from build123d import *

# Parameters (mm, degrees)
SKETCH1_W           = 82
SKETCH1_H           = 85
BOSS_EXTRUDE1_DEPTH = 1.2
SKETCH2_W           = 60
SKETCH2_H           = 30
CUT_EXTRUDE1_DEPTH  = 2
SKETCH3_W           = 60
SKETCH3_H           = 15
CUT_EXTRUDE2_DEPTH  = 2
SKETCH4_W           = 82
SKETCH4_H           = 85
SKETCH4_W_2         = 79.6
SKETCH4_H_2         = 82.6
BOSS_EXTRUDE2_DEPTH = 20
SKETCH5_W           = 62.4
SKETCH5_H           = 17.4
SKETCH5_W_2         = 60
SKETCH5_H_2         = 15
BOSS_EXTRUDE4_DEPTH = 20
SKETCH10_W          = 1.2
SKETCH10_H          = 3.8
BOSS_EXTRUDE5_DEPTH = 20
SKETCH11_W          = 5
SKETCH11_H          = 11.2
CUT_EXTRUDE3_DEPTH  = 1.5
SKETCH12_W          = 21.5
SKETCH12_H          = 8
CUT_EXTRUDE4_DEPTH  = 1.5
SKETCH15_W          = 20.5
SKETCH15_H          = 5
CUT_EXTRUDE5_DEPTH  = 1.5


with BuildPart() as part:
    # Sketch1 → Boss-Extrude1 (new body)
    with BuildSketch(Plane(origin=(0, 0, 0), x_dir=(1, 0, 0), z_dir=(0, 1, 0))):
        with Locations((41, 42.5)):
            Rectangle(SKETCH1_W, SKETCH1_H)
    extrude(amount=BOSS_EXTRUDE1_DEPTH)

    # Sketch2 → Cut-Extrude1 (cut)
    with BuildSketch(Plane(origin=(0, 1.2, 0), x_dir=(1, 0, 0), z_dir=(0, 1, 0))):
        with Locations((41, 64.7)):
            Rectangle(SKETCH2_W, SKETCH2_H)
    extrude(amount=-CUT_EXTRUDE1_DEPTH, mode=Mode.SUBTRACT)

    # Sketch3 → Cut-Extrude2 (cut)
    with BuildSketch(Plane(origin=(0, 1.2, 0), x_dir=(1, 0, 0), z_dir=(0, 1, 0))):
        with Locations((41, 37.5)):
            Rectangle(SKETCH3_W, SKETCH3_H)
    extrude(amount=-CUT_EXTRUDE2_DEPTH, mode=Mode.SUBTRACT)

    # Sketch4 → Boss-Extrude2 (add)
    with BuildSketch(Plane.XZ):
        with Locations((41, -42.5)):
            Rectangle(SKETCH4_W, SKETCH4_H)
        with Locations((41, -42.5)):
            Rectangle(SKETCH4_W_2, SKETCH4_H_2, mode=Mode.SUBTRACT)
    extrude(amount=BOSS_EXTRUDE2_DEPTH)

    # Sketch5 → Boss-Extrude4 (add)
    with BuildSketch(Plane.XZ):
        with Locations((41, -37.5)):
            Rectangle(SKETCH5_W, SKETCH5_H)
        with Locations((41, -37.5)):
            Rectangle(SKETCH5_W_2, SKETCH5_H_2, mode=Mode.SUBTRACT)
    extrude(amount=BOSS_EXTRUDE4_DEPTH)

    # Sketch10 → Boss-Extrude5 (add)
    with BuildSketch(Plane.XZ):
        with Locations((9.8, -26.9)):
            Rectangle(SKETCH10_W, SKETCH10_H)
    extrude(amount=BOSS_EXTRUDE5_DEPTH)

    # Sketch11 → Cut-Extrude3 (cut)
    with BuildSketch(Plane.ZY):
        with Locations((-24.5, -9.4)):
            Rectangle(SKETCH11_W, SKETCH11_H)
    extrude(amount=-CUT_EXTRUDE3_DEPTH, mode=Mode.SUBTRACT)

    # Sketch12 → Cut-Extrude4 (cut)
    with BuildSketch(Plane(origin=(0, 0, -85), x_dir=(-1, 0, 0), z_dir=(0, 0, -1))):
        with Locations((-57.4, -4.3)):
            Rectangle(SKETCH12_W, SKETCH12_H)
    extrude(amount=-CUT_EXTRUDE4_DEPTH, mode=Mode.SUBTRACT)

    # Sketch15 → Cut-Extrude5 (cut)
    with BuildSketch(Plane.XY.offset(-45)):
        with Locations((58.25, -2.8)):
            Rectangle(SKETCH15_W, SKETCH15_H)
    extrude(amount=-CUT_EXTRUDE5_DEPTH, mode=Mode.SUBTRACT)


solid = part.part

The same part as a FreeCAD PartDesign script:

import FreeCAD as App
import Part
import Sketcher
Q = App.Units.Quantity


def add_polygon(sketch, points):
    """Adds a closed chain of lines whose ends are joined by coincident constraints."""
    first, n = sketch.GeometryCount, len(points)
    for a, b in zip(points, points[1:] + points[:1]):
        sketch.addGeometry(Part.LineSegment(App.Vector(*a, 0), App.Vector(*b, 0)), False)
    for i in range(n):
        sketch.addConstraint(Sketcher.Constraint("Coincident", first + i, 2, first + (i + 1) % n, 1))

doc = App.newDocument("Part")
body = doc.addObject("PartDesign::Body", "Body")

sketch1 = body.newObject("Sketcher::SketchObject", "Sketch")
sketch1.AttachmentSupport = (doc.getObject("XZ_Plane"), [""])
sketch1.MapMode = "FlatFace"
add_polygon(sketch1, [(0, -85), (0, 0), (82, 0), (82, -85)])
sketch1.addConstraint([
    Sketcher.Constraint("Vertical", 0),
    Sketcher.Constraint("Horizontal", 1),
    Sketcher.Constraint("Vertical", 2),
    Sketcher.Constraint("Horizontal", 3),
    Sketcher.Constraint("Coincident", 0, 2, -1, 1),
    Sketcher.Constraint("DistanceX", 1, 1, 1, 2, Q("82 mm")),
    Sketcher.Constraint("DistanceY", 0, 1, 0, 2, Q("85 mm")),
])
pad1 = body.newObject("PartDesign::Pad", "Pad")
pad1.Profile = sketch1
pad1.Length = 1.2
pad1.Reversed = True

sketch2 = body.newObject("Sketcher::SketchObject", "Sketch001")
sketch2.AttachmentSupport = (doc.getObject("XZ_Plane"), [""])
sketch2.MapMode = "FlatFace"
sketch2.AttachmentOffset = App.Placement(App.Vector(0, 0, -1.2), App.Rotation())
add_polygon(sketch2, [(11, -80), (11, -50), (71, -50), (71, -80)])
sketch2.addConstraint([
    Sketcher.Constraint("Vertical", 0),
    Sketcher.Constraint("Horizontal", 1),
    Sketcher.Constraint("Vertical", 2),
    Sketcher.Constraint("Horizontal", 3),
    Sketcher.Constraint("DistanceX", 1, 1, 1, 2, Q("60 mm")),
    Sketcher.Constraint("DistanceY", 0, 1, 0, 2, Q("30 mm")),
    Sketcher.Constraint("DistanceX", -1, 1, 0, 2, Q("11 mm")),
    Sketcher.Constraint("DistanceY", 0, 2, -1, 1, Q("49.7 mm")),
])
pocket1 = body.newObject("PartDesign::Pocket", "Pocket")
pocket1.Profile = sketch2
pocket1.Length = 2
pocket1.Reversed = True

sketch3 = body.newObject("Sketcher::SketchObject", "Sketch002")
sketch3.AttachmentSupport = (doc.getObject("XZ_Plane"), [""])
sketch3.MapMode = "FlatFace"
sketch3.AttachmentOffset = App.Placement(App.Vector(0, 0, -1.2), App.Rotation())
add_polygon(sketch3, [(11, -45), (11, -30), (71, -30), (71, -45)])
sketch3.addConstraint([
    Sketcher.Constraint("Vertical", 0),
    Sketcher.Constraint("Horizontal", 1),
    Sketcher.Constraint("Vertical", 2),
    Sketcher.Constraint("Horizontal", 3),
    Sketcher.Constraint("DistanceX", 1, 1, 1, 2, Q("60 mm")),
    Sketcher.Constraint("DistanceY", 0, 1, 0, 2, Q("15 mm")),
    Sketcher.Constraint("DistanceX", -1, 1, 0, 2, Q("11 mm")),
    Sketcher.Constraint("DistanceY", 0, 2, -1, 1, Q("30 mm")),
])
pocket2 = body.newObject("PartDesign::Pocket", "Pocket001")
pocket2.Profile = sketch3
pocket2.Length = 2
pocket2.Reversed = True

sketch4 = body.newObject("Sketcher::SketchObject", "Sketch003")
sketch4.AttachmentSupport = (doc.getObject("XZ_Plane"), [""])
sketch4.MapMode = "FlatFace"
add_polygon(sketch4, [(0, 0), (0, -85), (82, -85), (82, 0)])
add_polygon(sketch4, [(81, -84), (1, -84), (1, -1), (81, -1)])
sketch4.addConstraint([
    Sketcher.Constraint("Vertical", 0),
    Sketcher.Constraint("Horizontal", 1),
    Sketcher.Constraint("Vertical", 2),
    Sketcher.Constraint("Horizontal", 3),
    Sketcher.Constraint("Horizontal", 4),
    Sketcher.Constraint("Vertical", 5),
    Sketcher.Constraint("Horizontal", 6),
    Sketcher.Constraint("Vertical", 7),
    Sketcher.Constraint("Coincident", 3, 2, -1, 1),
    Sketcher.Constraint("DistanceX", 1, 1, 1, 2, Q("82 mm")),
    Sketcher.Constraint("DistanceY", 0, 2, 0, 1, Q("85 mm")),
    Sketcher.Constraint("DistanceX", 4, 2, 4, 1, Q("79.6 mm")),
    Sketcher.Constraint("DistanceY", 5, 1, 5, 2, Q("82.6 mm")),
    Sketcher.Constraint("DistanceX", -1, 1, 4, 2, Q("1.2 mm")),
    Sketcher.Constraint("DistanceY", 4, 2, -1, 1, Q("83.8 mm")),
])
pad2 = body.newObject("PartDesign::Pad", "Pad001")
pad2.Profile = sketch4
pad2.Length = 20

sketch5 = body.newObject("Sketcher::SketchObject", "Sketch004")
sketch5.AttachmentSupport = (doc.getObject("XZ_Plane"), [""])
sketch5.MapMode = "FlatFace"
add_polygon(sketch5, [(10, -29), (10, -46), (72, -46), (72, -29)])
add_polygon(sketch5, [(71, -45), (11, -45), (11, -30), (71, -30)])
sketch5.addConstraint([
    Sketcher.Constraint("Vertical", 0),
    Sketcher.Constraint("Horizontal", 1),
    Sketcher.Constraint("Vertical", 2),
    Sketcher.Constraint("Horizontal", 3),
    Sketcher.Constraint("Horizontal", 4),
    Sketcher.Constraint("Vertical", 5),
    Sketcher.Constraint("Horizontal", 6),
    Sketcher.Constraint("Vertical", 7),
    Sketcher.Constraint("DistanceX", 4, 2, 4, 1, Q("60 mm")),
    Sketcher.Constraint("DistanceY", 5, 1, 5, 2, Q("15 mm")),
    Sketcher.Constraint("DistanceX", 1, 1, 1, 2, Q("62.4 mm")),
    Sketcher.Constraint("DistanceY", 0, 2, 0, 1, Q("17.4 mm")),
    Sketcher.Constraint("DistanceX", -1, 1, 4, 2, Q("11 mm")),
    Sketcher.Constraint("DistanceY", 4, 2, -1, 1, Q("45 mm")),
    Sketcher.Constraint("DistanceX", -1, 1, 0, 2, Q("9.8 mm")),
    Sketcher.Constraint("DistanceY", 0, 2, -1, 1, Q("46.2 mm")),
])
pad3 = body.newObject("PartDesign::Pad", "Pad002")
pad3.Profile = sketch5
pad3.Length = 20

sketch6 = body.newObject("Sketcher::SketchObject", "Sketch005")
sketch6.AttachmentSupport = (doc.getObject("XZ_Plane"), [""])
sketch6.MapMode = "FlatFace"
add_polygon(sketch6, [(9.2, -25), (9.2, -28.8), (10.4, -28.8), (10.4, -25)])
sketch6.addConstraint([
    Sketcher.Constraint("Vertical", 0),
    Sketcher.Constraint("Horizontal", 1),
    Sketcher.Constraint("Vertical", 2),
    Sketcher.Constraint("Horizontal", 3),
    Sketcher.Constraint("DistanceX", 1, 1, 1, 2, Q("1.2 mm")),
    Sketcher.Constraint("DistanceY", 0, 2, 0, 1, Q("3.8 mm")),
    Sketcher.Constraint("DistanceY", 2, 2, -1, 1, Q("25 mm")),
    Sketcher.Constraint("DistanceX", -1, 1, 0, 2, Q("9.2 mm")),
])
pad4 = body.newObject("PartDesign::Pad", "Pad003")
pad4.Profile = sketch6
pad4.Length = 20

sketch7 = body.newObject("Sketcher::SketchObject", "Sketch006")
sketch7.AttachmentSupport = (doc.getObject("YZ_Plane"), [""])
sketch7.MapMode = "FlatFace"
add_polygon(sketch7, [(-4, -27), (-15, -27), (-15, -22), (-4, -22)])
sketch7.addConstraint([
    Sketcher.Constraint("Horizontal", 0),
    Sketcher.Constraint("Vertical", 1),
    Sketcher.Constraint("Horizontal", 2),
    Sketcher.Constraint("Vertical", 3),
    Sketcher.Constraint("DistanceY", 1, 1, 1, 2, Q("5 mm")),
    Sketcher.Constraint("DistanceX", 0, 2, 0, 1, Q("11.2 mm")),
    Sketcher.Constraint("DistanceX", 0, 2, -1, 1, Q("15 mm")),
    Sketcher.Constraint("DistanceY", 0, 2, -1, 1, Q("27 mm")),
])
pocket3 = body.newObject("PartDesign::Pocket", "Pocket002")
pocket3.Profile = sketch7
pocket3.Length = 1.5
pocket3.Reversed = True

sketch8 = body.newObject("Sketcher::SketchObject", "Sketch007")
sketch8.AttachmentSupport = (doc.getObject("XY_Plane"), [""])
sketch8.MapMode = "FlatFace"
sketch8.AttachmentOffset = App.Placement(App.Vector(0, 0, -85), App.Rotation())
add_polygon(sketch8, [(68, 0), (68, -8), (47, -8), (47, 0)])
sketch8.addConstraint([
    Sketcher.Constraint("Vertical", 0),
    Sketcher.Constraint("Horizontal", 1),
    Sketcher.Constraint("Vertical", 2),
    Sketcher.Constraint("Horizontal", 3),
    Sketcher.Constraint("DistanceY", 0, 2, 0, 1, Q("8 mm")),
    Sketcher.Constraint("DistanceX", 1, 2, 1, 1, Q("21.5 mm")),
    Sketcher.Constraint("DistanceY", 0, 2, -1, 1, Q("8.3 mm")),
    Sketcher.Constraint("DistanceX", -1, 1, 0, 2, Q("68.15 mm")),
])
pocket4 = body.newObject("PartDesign::Pocket", "Pocket003")
pocket4.Profile = sketch8
pocket4.Length = 1.5
pocket4.Reversed = True

sketch9 = body.newObject("Sketcher::SketchObject", "Sketch008")
sketch9.AttachmentSupport = (doc.getObject("XY_Plane"), [""])
sketch9.MapMode = "FlatFace"
sketch9.AttachmentOffset = App.Placement(App.Vector(0, 0, -45), App.Rotation())
add_polygon(sketch9, [(48, 0), (48, -5), (68, -5), (68, 0)])
sketch9.addConstraint([
    Sketcher.Constraint("Vertical", 0),
    Sketcher.Constraint("Horizontal", 1),
    Sketcher.Constraint("Vertical", 2),
    Sketcher.Constraint("Horizontal", 3),
    Sketcher.Constraint("DistanceY", 0, 2, 0, 1, Q("5 mm")),
    Sketcher.Constraint("DistanceX", 1, 1, 1, 2, Q("20.5 mm")),
    Sketcher.Constraint("DistanceX", -1, 1, 0, 2, Q("48 mm")),
    Sketcher.Constraint("DistanceY", 0, 2, -1, 1, Q("5.3 mm")),
])
pocket5 = body.newObject("PartDesign::Pocket", "Pocket004")
pocket5.Profile = sketch9
pocket5.Length = 1.5

doc.recompute()
